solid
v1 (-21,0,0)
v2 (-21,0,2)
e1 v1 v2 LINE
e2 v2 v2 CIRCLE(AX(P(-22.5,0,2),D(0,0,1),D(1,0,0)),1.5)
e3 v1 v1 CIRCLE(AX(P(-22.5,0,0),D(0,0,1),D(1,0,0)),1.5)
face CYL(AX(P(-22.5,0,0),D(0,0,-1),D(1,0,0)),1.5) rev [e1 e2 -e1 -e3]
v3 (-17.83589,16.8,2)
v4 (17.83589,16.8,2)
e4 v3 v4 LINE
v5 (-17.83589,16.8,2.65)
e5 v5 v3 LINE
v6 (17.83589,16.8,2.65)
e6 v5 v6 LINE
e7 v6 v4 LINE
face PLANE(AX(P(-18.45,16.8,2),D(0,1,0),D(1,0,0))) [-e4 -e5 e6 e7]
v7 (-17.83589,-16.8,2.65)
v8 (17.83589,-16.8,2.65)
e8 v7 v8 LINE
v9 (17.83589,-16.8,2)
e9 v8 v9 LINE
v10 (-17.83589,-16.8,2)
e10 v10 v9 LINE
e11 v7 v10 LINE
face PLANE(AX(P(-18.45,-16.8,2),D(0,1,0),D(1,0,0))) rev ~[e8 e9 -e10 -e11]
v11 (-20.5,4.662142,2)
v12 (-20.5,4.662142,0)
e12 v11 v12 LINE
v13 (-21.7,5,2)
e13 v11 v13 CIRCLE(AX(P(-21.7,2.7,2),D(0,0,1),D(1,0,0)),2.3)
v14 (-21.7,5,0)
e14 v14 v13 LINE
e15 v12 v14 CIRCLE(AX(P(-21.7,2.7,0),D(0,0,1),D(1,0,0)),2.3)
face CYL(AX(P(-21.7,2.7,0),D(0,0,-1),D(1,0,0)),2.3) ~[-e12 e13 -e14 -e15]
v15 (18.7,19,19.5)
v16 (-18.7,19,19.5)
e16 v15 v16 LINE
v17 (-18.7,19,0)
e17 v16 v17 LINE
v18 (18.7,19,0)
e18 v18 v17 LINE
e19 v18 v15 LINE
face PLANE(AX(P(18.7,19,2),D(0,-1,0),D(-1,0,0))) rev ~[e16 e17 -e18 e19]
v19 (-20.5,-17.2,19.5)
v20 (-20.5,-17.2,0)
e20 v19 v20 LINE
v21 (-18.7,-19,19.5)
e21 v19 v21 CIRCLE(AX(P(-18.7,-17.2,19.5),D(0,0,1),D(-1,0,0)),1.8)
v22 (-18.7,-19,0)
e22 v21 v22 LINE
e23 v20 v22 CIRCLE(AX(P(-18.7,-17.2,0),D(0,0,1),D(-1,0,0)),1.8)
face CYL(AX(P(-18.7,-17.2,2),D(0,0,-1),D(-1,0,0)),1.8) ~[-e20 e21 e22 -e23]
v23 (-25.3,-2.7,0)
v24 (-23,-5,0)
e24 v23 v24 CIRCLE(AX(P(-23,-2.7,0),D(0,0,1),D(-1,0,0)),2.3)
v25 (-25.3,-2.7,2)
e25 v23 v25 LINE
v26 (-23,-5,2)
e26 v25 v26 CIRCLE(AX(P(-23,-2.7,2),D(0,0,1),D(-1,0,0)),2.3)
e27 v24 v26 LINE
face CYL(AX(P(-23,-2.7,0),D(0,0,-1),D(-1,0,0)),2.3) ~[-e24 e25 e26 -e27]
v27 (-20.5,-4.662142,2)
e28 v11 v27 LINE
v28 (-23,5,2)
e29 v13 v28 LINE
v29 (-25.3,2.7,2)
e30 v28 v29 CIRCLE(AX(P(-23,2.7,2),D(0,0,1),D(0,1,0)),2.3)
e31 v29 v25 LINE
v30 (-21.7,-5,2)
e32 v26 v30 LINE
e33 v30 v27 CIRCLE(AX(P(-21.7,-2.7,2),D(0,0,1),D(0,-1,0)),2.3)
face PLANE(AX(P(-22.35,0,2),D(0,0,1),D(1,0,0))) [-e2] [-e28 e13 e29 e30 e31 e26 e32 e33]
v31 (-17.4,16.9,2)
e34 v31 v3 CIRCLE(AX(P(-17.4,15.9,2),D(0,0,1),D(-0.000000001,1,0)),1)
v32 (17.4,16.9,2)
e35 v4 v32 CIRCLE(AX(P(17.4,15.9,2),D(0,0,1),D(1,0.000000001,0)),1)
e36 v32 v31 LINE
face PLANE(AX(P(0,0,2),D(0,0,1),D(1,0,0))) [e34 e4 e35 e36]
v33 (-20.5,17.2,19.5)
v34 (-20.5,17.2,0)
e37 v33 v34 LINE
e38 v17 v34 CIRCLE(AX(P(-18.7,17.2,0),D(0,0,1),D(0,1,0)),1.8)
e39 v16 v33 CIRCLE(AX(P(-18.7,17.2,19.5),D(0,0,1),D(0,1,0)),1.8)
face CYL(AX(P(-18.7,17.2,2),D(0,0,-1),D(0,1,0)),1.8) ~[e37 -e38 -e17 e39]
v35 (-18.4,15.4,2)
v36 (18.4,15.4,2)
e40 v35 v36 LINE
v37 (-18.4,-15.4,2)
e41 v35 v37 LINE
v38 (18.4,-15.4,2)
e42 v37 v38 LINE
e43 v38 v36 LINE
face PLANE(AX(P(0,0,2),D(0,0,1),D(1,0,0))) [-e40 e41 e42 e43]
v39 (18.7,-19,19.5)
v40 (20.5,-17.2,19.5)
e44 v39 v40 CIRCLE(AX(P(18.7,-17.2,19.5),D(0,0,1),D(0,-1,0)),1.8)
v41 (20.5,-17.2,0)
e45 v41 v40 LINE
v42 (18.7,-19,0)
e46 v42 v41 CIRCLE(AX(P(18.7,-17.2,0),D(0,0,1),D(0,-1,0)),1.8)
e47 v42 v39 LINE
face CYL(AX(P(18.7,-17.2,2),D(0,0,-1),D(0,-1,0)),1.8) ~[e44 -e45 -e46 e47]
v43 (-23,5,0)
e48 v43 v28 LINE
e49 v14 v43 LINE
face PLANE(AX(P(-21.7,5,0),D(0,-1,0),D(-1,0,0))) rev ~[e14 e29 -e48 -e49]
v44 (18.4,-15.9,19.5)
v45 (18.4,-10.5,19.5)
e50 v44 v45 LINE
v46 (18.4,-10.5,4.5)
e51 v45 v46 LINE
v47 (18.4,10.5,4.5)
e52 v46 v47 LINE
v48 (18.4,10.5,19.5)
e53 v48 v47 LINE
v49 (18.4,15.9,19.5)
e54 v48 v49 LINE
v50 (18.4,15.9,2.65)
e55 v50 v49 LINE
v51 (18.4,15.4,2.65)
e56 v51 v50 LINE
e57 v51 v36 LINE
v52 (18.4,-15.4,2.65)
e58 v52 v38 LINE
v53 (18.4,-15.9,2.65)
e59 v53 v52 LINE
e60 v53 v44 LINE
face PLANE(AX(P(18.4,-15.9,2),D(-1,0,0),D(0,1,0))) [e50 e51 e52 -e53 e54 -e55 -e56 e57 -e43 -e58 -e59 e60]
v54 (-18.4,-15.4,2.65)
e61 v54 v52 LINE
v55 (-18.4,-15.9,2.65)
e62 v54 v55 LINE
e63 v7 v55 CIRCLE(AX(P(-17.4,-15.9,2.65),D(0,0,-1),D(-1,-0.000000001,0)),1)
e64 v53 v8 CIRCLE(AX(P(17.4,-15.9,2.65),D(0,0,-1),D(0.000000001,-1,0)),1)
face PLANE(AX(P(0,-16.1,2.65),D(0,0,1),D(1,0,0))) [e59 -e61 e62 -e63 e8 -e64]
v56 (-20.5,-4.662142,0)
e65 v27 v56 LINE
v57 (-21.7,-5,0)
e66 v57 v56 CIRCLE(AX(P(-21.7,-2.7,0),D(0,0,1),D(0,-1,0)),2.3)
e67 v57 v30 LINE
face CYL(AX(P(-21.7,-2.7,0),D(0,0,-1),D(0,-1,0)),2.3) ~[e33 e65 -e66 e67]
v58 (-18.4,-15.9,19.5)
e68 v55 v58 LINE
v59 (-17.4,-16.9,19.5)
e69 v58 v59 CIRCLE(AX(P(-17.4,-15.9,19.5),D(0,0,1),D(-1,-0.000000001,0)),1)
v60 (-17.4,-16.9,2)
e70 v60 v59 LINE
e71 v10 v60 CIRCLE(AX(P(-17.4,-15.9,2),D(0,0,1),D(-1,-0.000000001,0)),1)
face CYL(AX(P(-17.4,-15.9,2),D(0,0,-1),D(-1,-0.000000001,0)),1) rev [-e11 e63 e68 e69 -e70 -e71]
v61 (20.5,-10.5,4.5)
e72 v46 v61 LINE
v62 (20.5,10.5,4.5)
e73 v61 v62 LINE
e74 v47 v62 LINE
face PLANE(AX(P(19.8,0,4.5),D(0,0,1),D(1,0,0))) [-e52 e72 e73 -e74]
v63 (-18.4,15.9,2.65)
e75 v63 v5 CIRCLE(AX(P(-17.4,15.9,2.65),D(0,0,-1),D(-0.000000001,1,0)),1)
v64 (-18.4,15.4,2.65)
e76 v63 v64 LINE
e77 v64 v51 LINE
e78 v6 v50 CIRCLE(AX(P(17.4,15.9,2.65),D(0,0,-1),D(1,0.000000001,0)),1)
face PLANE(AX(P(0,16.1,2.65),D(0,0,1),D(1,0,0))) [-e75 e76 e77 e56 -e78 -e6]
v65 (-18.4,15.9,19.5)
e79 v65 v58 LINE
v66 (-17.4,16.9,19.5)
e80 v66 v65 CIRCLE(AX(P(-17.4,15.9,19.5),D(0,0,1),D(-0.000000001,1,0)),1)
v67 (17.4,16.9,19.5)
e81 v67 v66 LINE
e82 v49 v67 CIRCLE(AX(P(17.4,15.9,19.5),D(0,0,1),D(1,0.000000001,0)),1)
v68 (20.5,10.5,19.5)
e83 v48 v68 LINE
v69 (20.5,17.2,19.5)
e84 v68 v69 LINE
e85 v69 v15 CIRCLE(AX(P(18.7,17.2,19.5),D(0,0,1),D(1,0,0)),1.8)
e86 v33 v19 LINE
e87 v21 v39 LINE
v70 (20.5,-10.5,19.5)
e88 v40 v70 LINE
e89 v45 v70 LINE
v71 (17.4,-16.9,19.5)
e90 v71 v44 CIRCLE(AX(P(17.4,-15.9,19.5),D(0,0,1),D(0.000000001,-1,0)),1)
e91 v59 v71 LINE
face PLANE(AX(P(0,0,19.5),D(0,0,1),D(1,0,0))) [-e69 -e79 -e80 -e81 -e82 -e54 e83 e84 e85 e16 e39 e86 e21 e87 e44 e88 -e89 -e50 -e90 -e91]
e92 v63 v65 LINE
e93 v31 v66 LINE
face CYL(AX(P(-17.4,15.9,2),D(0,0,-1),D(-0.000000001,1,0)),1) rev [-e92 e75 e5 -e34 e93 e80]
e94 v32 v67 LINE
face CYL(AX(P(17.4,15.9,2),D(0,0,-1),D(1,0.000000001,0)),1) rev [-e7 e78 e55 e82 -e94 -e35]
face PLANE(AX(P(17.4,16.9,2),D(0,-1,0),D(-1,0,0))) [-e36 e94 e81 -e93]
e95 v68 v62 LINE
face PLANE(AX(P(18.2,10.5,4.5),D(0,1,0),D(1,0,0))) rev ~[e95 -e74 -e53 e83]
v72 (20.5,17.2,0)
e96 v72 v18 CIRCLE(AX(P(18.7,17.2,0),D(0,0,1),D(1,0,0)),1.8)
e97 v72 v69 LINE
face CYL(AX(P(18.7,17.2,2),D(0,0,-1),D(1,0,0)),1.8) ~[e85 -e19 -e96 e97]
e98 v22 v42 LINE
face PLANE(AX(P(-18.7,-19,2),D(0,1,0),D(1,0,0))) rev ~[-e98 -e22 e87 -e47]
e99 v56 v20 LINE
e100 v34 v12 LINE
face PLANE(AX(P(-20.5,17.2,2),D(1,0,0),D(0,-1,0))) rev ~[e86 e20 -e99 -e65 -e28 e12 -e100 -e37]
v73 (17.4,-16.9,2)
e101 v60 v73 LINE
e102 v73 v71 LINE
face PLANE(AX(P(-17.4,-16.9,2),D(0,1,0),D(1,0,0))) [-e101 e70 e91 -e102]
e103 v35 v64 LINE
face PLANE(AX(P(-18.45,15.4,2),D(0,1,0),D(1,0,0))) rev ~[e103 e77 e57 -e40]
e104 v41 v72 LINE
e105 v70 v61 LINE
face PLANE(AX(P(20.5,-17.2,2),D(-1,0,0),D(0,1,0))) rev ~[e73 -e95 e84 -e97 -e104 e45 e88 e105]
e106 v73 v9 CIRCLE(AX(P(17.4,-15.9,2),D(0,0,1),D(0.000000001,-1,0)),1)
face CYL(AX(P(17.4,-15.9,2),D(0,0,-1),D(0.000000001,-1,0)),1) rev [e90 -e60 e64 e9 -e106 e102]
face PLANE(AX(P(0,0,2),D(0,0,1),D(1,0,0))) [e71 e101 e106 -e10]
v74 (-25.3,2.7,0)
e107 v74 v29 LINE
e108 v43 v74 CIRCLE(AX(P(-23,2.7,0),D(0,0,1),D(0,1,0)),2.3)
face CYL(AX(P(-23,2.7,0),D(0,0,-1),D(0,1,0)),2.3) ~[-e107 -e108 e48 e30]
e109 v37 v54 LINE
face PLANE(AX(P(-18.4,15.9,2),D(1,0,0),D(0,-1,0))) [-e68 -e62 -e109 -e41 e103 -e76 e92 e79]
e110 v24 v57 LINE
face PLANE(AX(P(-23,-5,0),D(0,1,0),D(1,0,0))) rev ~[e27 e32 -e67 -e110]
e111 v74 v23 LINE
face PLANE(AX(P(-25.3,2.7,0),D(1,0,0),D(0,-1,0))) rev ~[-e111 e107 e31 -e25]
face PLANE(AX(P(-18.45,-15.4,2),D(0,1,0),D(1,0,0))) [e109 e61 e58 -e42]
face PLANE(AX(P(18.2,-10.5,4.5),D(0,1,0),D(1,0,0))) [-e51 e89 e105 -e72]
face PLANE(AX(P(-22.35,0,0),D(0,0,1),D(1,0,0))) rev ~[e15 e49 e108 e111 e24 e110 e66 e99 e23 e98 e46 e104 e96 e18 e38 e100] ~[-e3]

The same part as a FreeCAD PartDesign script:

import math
import FreeCAD as App
import Part
import Sketcher


def add_polygon(sketch, points):
    """Adds a closed chain of lines whose ends are joined by coincident constraints."""
    first, n = sketch.GeometryCount, len(points)
    for a, b in zip(points, points[1:] + points[:1]):
        sketch.addGeometry(Part.LineSegment(App.Vector(*a, 0), App.Vector(*b, 0)), False)
    for i in range(n):
        sketch.addConstraint(Sketcher.Constraint("Coincident", first + i, 2, first + (i + 1) % n, 1))

doc = App.newDocument("Part")
body = doc.addObject("PartDesign::Body", "Body")

sketch1 = body.newObject("Sketcher::SketchObject", "Sketch")
sketch1.AttachmentSupport = (doc.getObject("XY_Plane"), [""])
sketch1.MapMode = "FlatFace"
sketch1.addGeometry(Part.LineSegment(App.Vector(-18.7, -19, 0), App.Vector(18.7, -19, 0)), False)
sketch1.addGeometry(Part.ArcOfCircle(Part.Circle(App.Vector(18.7, -17.2, 0), App.Vector(0, 0, 1), 1.8), math.radians(-90), math.radians(0)), False)
sketch1.addGeometry(Part.LineSegment(App.Vector(20.5, -17.2, 0), App.Vector(20.5, 17.2, 0)), False)
sketch1.addGeometry(Part.ArcOfCircle(Part.Circle(App.Vector(18.7, 17.2, 0), App.Vector(0, 0, 1), 1.8), math.radians(0), math.radians(90)), False)
sketch1.addGeometry(Part.LineSegment(App.Vector(18.7, 19, 0), App.Vector(-18.7, 19, 0)), False)
sketch1.addGeometry(Part.ArcOfCircle(Part.Circle(App.Vector(-18.7, 17.2, 0), App.Vector(0, 0, 1), 1.8), math.radians(90), math.radians(180)), False)
sketch1.addGeometry(Part.LineSegment(App.Vector(-20.5, 17.2, 0), App.Vector(-20.5, -17.2, 0)), False)
sketch1.addGeometry(Part.ArcOfCircle(Part.Circle(App.Vector(-18.7, -17.2, 0), App.Vector(0, 0, 1), 1.8), math.radians(180), math.radians(270)), False)
sketch1.addConstraint(Sketcher.Constraint("Tangent", 0, 2, 1, 1))
sketch1.addConstraint(Sketcher.Constraint("Tangent", 1, 2, 2, 1))
sketch1.addConstraint(Sketcher.Constraint("Tangent", 2, 2, 3, 1))
sketch1.addConstraint(Sketcher.Constraint("Tangent", 3, 2, 4, 1))
sketch1.addConstraint(Sketcher.Constraint("Tangent", 4, 2, 5, 1))
sketch1.addConstraint(Sketcher.Constraint("Tangent", 5, 2, 6, 1))
sketch1.addConstraint(Sketcher.Constraint("Tangent", 6, 2, 7, 1))
sketch1.addConstraint(Sketcher.Constraint("Tangent", 7, 2, 0, 1))
sketch1.addConstraint(Sketcher.Constraint("Horizontal", 0))
sketch1.addConstraint(Sketcher.Constraint("Vertical", 2))
sketch1.addConstraint(Sketcher.Constraint("Horizontal", 4))
sketch1.addConstraint(Sketcher.Constraint("Vertical", 6))
sketch1.addConstraint(Sketcher.Constraint("Equal", 1, 3))
sketch1.addConstraint(Sketcher.Constraint("Equal", 3, 5))
sketch1.addConstraint(Sketcher.Constraint("Equal", 5, 7))
sketch1.addConstraint(Sketcher.Constraint("Symmetric", 1, 3, 5, 3, -1, 1))
sketch1.addConstraint(Sketcher.Constraint("Radius", 1, 1.8))
sketch1.addConstraint(Sketcher.Constraint("DistanceX", 0, 1, 0, 2, 37.4))
sketch1.addConstraint(Sketcher.Constraint("DistanceY", 2, 1, 2, 2, 34.4))
pad1 = body.newObject("PartDesign::Pad", "Pad")
pad1.Profile = sketch1
pad1.Length = 2

sketch2 = body.newObject("Sketcher::SketchObject", "Sketch001")
sketch2.AttachmentSupport = (doc.getObject("XY_Plane"), [""])
sketch2.MapMode = "FlatFace"
sketch2.AttachmentOffset = App.Placement(App.Vector(0, 0, 2), App.Rotation())
sketch2.addGeometry(Part.LineSegment(App.Vector(-18.7, -19, 0), App.Vector(18.7, -19, 0)), False)
sketch2.addGeometry(Part.ArcOfCircle(Part.Circle(App.Vector(18.7, -17.2, 0), App.Vector(0, 0, 1), 1.8), math.radians(-90), math.radians(0)), False)
sketch2.addGeometry(Part.LineSegment(App.Vector(20.5, -17.2, 0), App.Vector(20.5, 17.2, 0)), False)
sketch2.addGeometry(Part.ArcOfCircle(Part.Circle(App.Vector(18.7, 17.2, 0), App.Vector(0, 0, 1), 1.8), math.radians(0), math.radians(90)), False)
sketch2.addGeometry(Part.LineSegment(App.Vector(18.7, 19, 0), App.Vector(-18.7, 19, 0)), False)
sketch2.addGeometry(Part.ArcOfCircle(Part.Circle(App.Vector(-18.7, 17.2, 0), App.Vector(0, 0, 1), 1.8), math.radians(90), math.radians(180)), False)
sketch2.addGeometry(Part.LineSegment(App.Vector(-20.5, 17.2, 0), App.Vector(-20.5, -17.2, 0)), False)
sketch2.addGeometry(Part.ArcOfCircle(Part.Circle(App.Vector(-18.7, -17.2, 0), App.Vector(0, 0, 1), 1.8), math.radians(180), math.radians(270)), False)
sketch2.addGeometry(Part.LineSegment(App.Vector(17.4, -16.9, 0), App.Vector(-17.4, -16.9, 0)), False)
sketch2.addGeometry(Part.ArcOfCircle(Part.Circle(App.Vector(-17.4, -15.9, 0), App.Vector(0, 0, 1), 1), math.radians(-180), math.radians(-90)), False)
sketch2.addGeometry(Part.LineSegment(App.Vector(-18.4, -15.9, 0), App.Vector(-18.4, 15.9, 0)), False)
sketch2.addGeometry(Part.ArcOfCircle(Part.Circle(App.Vector(-17.4, 15.9, 0), App.Vector(0, 0, 1), 1), math.radians(90), math.radians(180)), False)
sketch2.addGeometry(Part.LineSegment(App.Vector(-17.4, 16.9, 0), App.Vector(17.4, 16.9, 0)), False)
sketch2.addGeometry(Part.ArcOfCircle(Part.Circle(App.Vector(17.4, 15.9, 0), App.Vector(0, 0, 1), 1), math.radians(0), math.radians(90)), False)
sketch2.addGeometry(Part.LineSegment(App.Vector(18.4, 15.9, 0), App.Vector(18.4, -15.9, 0)), False)
sketch2.addGeometry(Part.ArcOfCircle(Part.Circle(App.Vector(17.4, -15.9, 0), App.Vector(0, 0, 1), 1), math.radians(-90), math.radians(0)), False)
sketch2.addConstraint(Sketcher.Constraint("Tangent", 0, 2, 1, 1))
sketch2.addConstraint(Sketcher.Constraint("Tangent", 1, 2, 2, 1))
sketch2.addConstraint(Sketcher.Constraint("Tangent", 2, 2, 3, 1))
sketch2.addConstraint(Sketcher.Constraint("Tangent", 3, 2, 4, 1))
sketch2.addConstraint(Sketcher.Constraint("Tangent", 4, 2, 5, 1))
sketch2.addConstraint(Sketcher.Constraint("Tangent", 5, 2, 6, 1))
sketch2.addConstraint(Sketcher.Constraint("Tangent", 6, 2, 7, 1))
sketch2.addConstraint(Sketcher.Constraint("Tangent", 7, 2, 0, 1))
sketch2.addConstraint(Sketcher.Constraint("Tangent", 8, 2, 9, 2))
sketch2.addConstraint(Sketcher.Constraint("Tangent", 9, 1, 10, 1))
sketch2.addConstraint(Sketcher.Constraint("Tangent", 10, 2, 11, 2))
sketch2.addConstraint(Sketcher.Constraint("Tangent", 11, 1, 12, 1))
sketch2.addConstraint(Sketcher.Constraint("Tangent", 12, 2, 13, 2))
sketch2.addConstraint(Sketcher.Constraint("Tangent", 13, 1, 14, 1))
sketch2.addConstraint(Sketcher.Constraint("Tangent", 14, 2, 15, 2))
sketch2.addConstraint(Sketcher.Constraint("Tangent", 15, 1, 8, 1))
sketch2.addConstraint(Sketcher.Constraint("Horizontal", 0))
sketch2.addConstraint(Sketcher.Constraint("Vertical", 2))
sketch2.addConstraint(Sketcher.Constraint("Horizontal", 4))
sketch2.addConstraint(Sketcher.Constraint("Vertical", 6))
sketch2.addConstraint(Sketcher.Constraint("Horizontal", 8))
sketch2.addConstraint(Sketcher.Constraint("Vertical", 10))
sketch2.addConstraint(Sketcher.Constraint("Horizontal", 12))
sketch2.addConstraint(Sketcher.Constraint("Vertical", 14))
sketch2.addConstraint(Sketcher.Constraint("Equal", 1, 3))
sketch2.addConstraint(Sketcher.Constraint("Equal", 3, 5))
sketch2.addConstraint(Sketcher.Constraint("Equal", 5, 7))
sketch2.addConstraint(Sketcher.Constraint("Equal", 9, 11))
sketch2.addConstraint(Sketcher.Constraint("Equal", 11, 13))
sketch2.addConstraint(Sketcher.Constraint("Equal", 13, 15))
sketch2.addConstraint(Sketcher.Constraint("Symmetric", 1, 3, 5, 3, -1, 1))
sketch2.addConstraint(Sketcher.Constraint("Symmetric", 9, 3, 13, 3, -1, 1))
sketch2.addConstraint(Sketcher.Constraint("Radius", 9, 1.0))
sketch2.addConstraint(Sketcher.Constraint("Radius", 1, 1.8))
sketch2.addConstraint(Sketcher.Constraint("DistanceX", 0, 1, 0, 2, 37.4))
sketch2.addConstraint(Sketcher.Constraint("DistanceX", 8, 2, 8, 1, 34.8))
sketch2.addConstraint(Sketcher.Constraint("DistanceY", 2, 1, 2, 2, 34.4))
sketch2.addConstraint(Sketcher.Constraint("DistanceY", 10, 1, 10, 2, 31.8))
pad2 = body.newObject("PartDesign::Pad", "Pad001")
pad2.Profile = sketch2
pad2.Length = 17.5

sketch3 = body.newObject("Sketcher::SketchObject", "Sketch002")
sketch3.AttachmentSupport = (doc.getObject("XY_Plane"), [""])
sketch3.MapMode = "FlatFace"
sketch3.AttachmentOffset = App.Placement(App.Vector(0, 0, 4.5), App.Rotation())
add_polygon(sketch3, [(18.2, 10.5), (18.2, -10.5), (21.4, -10.5), (21.4, 10.5)])
sketch3.addConstraint(Sketcher.Constraint("Vertical", 0))
sketch3.addConstraint(Sketcher.Constraint("Horizontal", 1))
sketch3.addConstraint(Sketcher.Constraint("Vertical", 2))
sketch3.addConstraint(Sketcher.Constraint("Horizontal", 3))
sketch3.addConstraint(Sketcher.Constraint("DistanceY", 0, 2, 0, 1, 21.0))
sketch3.addConstraint(Sketcher.Constraint("DistanceX", 1, 1, 1, 2, 3.2))
sketch3.addConstraint(Sketcher.Constraint("DistanceX", -1, 1, 0, 2, 18.2))
sketch3.addConstraint(Sketcher.Constraint("DistanceY", 0, 2, -1, 1, 10.5))
pocket1 = body.newObject("PartDesign::Pocket", "Pocket")
pocket1.Profile = sketch3
pocket1.Length = 15
pocket1.Reversed = True

sketch4 = body.newObject("Sketcher::SketchObject", "Sketch003")
sketch4.AttachmentSupport = (doc.getObject("XY_Plane"), [""])
sketch4.MapMode = "FlatFace"
sketch4.addGeometry(Part.LineSegment(App.Vector(-23, -5, 0), App.Vector(-21.7, -5, 0)), False)
sketch4.addGeometry(Part.ArcOfCircle(Part.Circle(App.Vector(-21.7, -2.7, 0), App.Vector(0, 0, 1), 2.3), math.radians(-90), math.radians(0)), False)
sketch4.addGeometry(Part.LineSegment(App.Vector(-19.4, -2.7, 0), App.Vector(-19.4, 2.7, 0)), False)
sketch4.addGeometry(Part.ArcOfCircle(Part.Circle(App.Vector(-21.7, 2.7, 0), App.Vector(0, 0, 1), 2.3), math.radians(0), math.radians(90)), False)
sketch4.addGeometry(Part.LineSegment(App.Vector(-21.7, 5, 0), App.Vector(-23, 5, 0)), False)
sketch4.addGeometry(Part.ArcOfCircle(Part.Circle(App.Vector(-23, 2.7, 0), App.Vector(0, 0, 1), 2.3), math.radians(90), math.radians(180)), False)
sketch4.addGeometry(Part.LineSegment(App.Vector(-25.3, 2.7, 0), App.Vector(-25.3, -2.7, 0)), False)
sketch4.addGeometry(Part.ArcOfCircle(Part.Circle(App.Vector(-23, -2.7, 0), App.Vector(0, 0, 1), 2.3), math.radians(180), math.radians(270)), False)
sketch4.addConstraint(Sketcher.Constraint("Tangent", 0, 2, 1, 1))
sketch4.addConstraint(Sketcher.Constraint("Tangent", 1, 2, 2, 1))
sketch4.addConstraint(Sketcher.Constraint("Tangent", 2, 2, 3, 1))
sketch4.addConstraint(Sketcher.Constraint("Tangent", 3, 2, 4, 1))
sketch4.addConstraint(Sketcher.Constraint("Tangent", 4, 2, 5, 1))
sketch4.addConstraint(Sketcher.Constraint("Tangent", 5, 2, 6, 1))
sketch4.addConstraint(Sketcher.Constraint("Tangent", 6, 2, 7, 1))
sketch4.addConstraint(Sketcher.Constraint("Tangent", 7, 2, 0, 1))
sketch4.addConstraint(Sketcher.Constraint("Horizontal", 0))
sketch4.addConstraint(Sketcher.Constraint("Vertical", 2))
sketch4.addConstraint(Sketcher.Constraint("Horizontal", 4))
sketch4.addConstraint(Sketcher.Constraint("Vertical", 6))
sketch4.addConstraint(Sketcher.Constraint("Equal", 1, 3))
sketch4.addConstraint(Sketcher.Constraint("Equal", 3, 5))
sketch4.addConstraint(Sketcher.Constraint("Equal", 5, 7))
sketch4.addConstraint(Sketcher.Constraint("Radius", 1, 2.3))
sketch4.addConstraint(Sketcher.Constraint("DistanceX", 0, 1, 0, 2, 1.3))
sketch4.addConstraint(Sketcher.Constraint("DistanceY", 2, 1, 2, 2, 5.4))
sketch4.addConstraint(Sketcher.Constraint("DistanceX", 5, 3, -1, 1, 23.0))
sketch4.addConstraint(Sketcher.Constraint("DistanceY", 0, 2, -1, 1, 5.0))
pad3 = body.newObject("PartDesign::Pad", "Pad002")
pad3.Profile = sketch4
pad3.Length = 2

sketch5 = body.newObject("Sketcher::SketchObject", "Sketch004")
sketch5.AttachmentSupport = (doc.getObject("XY_Plane"), [""])
sketch5.MapMode = "FlatFace"
sketch5.addGeometry(Part.Circle(App.Vector(-22.5, 0, 0), App.Vector(0, 0, 1), 1.5), False)
sketch5.addConstraint(Sketcher.Constraint("PointOnObject", 0, 3, -1))
sketch5.addConstraint(Sketcher.Constraint("Diameter", 0, 3.0))
sketch5.addConstraint(Sketcher.Constraint("DistanceX", 0, 3, -1, 1, 22.5))
pocket2 = body.newObject("PartDesign::Pocket", "Pocket001")
pocket2.Profile = sketch5
pocket2.Length = 2
pocket2.Reversed = True

sketch6 = body.newObject("Sketcher::SketchObject", "Sketch005")
sketch6.AttachmentSupport = (doc.getObject("XY_Plane"), [""])
sketch6.MapMode = "FlatFace"
sketch6.AttachmentOffset = App.Placement(App.Vector(0, 0, 2), App.Rotation())
add_polygon(sketch6, [(-18.4, -15.4), (-18.4, -16.8), (18.4, -16.8), (18.4, -15.4)])
add_polygon(sketch6, [(-18.4, 16.8), (-18.4, 15.4), (18.4, 15.4), (18.4, 16.8)])
sketch6.addConstraint(Sketcher.Constraint("Vertical", 0))
sketch6.addConstraint(Sketcher.Constraint("Horizontal", 1))
sketch6.addConstraint(Sketcher.Constraint("Vertical", 2))
sketch6.addConstraint(Sketcher.Constraint("Horizontal", 3))
sketch6.addConstraint(Sketcher.Constraint("Vertical", 4))
sketch6.addConstraint(Sketcher.Constraint("Horizontal", 5))
sketch6.addConstraint(Sketcher.Constraint("Vertical", 6))
sketch6.addConstraint(Sketcher.Constraint("Horizontal", 7))
sketch6.addConstraint(Sketcher.Constraint("Symmetric", 2, 2, 4, 2, -1, 1))
sketch6.addConstraint(Sketcher.Constraint("Symmetric", 0, 2, 6, 2, -1, 1))
sketch6.addConstraint(Sketcher.Constraint("Vertical", 3, 2, 4, 2))
sketch6.addConstraint(Sketcher.Constraint("DistanceX", 1, 1, 1, 2, 36.9))
sketch6.addConstraint(Sketcher.Constraint("DistanceY", 0, 2, 0, 1, 1.4))
sketch6.addConstraint(Sketcher.Constraint("DistanceY", 0, 2, -1, 1, 16.8))
pad4 = body.newObject("PartDesign::Pad", "Pad003")
pad4.Profile = sketch6
pad4.Length = 0.65

doc.recompute()
